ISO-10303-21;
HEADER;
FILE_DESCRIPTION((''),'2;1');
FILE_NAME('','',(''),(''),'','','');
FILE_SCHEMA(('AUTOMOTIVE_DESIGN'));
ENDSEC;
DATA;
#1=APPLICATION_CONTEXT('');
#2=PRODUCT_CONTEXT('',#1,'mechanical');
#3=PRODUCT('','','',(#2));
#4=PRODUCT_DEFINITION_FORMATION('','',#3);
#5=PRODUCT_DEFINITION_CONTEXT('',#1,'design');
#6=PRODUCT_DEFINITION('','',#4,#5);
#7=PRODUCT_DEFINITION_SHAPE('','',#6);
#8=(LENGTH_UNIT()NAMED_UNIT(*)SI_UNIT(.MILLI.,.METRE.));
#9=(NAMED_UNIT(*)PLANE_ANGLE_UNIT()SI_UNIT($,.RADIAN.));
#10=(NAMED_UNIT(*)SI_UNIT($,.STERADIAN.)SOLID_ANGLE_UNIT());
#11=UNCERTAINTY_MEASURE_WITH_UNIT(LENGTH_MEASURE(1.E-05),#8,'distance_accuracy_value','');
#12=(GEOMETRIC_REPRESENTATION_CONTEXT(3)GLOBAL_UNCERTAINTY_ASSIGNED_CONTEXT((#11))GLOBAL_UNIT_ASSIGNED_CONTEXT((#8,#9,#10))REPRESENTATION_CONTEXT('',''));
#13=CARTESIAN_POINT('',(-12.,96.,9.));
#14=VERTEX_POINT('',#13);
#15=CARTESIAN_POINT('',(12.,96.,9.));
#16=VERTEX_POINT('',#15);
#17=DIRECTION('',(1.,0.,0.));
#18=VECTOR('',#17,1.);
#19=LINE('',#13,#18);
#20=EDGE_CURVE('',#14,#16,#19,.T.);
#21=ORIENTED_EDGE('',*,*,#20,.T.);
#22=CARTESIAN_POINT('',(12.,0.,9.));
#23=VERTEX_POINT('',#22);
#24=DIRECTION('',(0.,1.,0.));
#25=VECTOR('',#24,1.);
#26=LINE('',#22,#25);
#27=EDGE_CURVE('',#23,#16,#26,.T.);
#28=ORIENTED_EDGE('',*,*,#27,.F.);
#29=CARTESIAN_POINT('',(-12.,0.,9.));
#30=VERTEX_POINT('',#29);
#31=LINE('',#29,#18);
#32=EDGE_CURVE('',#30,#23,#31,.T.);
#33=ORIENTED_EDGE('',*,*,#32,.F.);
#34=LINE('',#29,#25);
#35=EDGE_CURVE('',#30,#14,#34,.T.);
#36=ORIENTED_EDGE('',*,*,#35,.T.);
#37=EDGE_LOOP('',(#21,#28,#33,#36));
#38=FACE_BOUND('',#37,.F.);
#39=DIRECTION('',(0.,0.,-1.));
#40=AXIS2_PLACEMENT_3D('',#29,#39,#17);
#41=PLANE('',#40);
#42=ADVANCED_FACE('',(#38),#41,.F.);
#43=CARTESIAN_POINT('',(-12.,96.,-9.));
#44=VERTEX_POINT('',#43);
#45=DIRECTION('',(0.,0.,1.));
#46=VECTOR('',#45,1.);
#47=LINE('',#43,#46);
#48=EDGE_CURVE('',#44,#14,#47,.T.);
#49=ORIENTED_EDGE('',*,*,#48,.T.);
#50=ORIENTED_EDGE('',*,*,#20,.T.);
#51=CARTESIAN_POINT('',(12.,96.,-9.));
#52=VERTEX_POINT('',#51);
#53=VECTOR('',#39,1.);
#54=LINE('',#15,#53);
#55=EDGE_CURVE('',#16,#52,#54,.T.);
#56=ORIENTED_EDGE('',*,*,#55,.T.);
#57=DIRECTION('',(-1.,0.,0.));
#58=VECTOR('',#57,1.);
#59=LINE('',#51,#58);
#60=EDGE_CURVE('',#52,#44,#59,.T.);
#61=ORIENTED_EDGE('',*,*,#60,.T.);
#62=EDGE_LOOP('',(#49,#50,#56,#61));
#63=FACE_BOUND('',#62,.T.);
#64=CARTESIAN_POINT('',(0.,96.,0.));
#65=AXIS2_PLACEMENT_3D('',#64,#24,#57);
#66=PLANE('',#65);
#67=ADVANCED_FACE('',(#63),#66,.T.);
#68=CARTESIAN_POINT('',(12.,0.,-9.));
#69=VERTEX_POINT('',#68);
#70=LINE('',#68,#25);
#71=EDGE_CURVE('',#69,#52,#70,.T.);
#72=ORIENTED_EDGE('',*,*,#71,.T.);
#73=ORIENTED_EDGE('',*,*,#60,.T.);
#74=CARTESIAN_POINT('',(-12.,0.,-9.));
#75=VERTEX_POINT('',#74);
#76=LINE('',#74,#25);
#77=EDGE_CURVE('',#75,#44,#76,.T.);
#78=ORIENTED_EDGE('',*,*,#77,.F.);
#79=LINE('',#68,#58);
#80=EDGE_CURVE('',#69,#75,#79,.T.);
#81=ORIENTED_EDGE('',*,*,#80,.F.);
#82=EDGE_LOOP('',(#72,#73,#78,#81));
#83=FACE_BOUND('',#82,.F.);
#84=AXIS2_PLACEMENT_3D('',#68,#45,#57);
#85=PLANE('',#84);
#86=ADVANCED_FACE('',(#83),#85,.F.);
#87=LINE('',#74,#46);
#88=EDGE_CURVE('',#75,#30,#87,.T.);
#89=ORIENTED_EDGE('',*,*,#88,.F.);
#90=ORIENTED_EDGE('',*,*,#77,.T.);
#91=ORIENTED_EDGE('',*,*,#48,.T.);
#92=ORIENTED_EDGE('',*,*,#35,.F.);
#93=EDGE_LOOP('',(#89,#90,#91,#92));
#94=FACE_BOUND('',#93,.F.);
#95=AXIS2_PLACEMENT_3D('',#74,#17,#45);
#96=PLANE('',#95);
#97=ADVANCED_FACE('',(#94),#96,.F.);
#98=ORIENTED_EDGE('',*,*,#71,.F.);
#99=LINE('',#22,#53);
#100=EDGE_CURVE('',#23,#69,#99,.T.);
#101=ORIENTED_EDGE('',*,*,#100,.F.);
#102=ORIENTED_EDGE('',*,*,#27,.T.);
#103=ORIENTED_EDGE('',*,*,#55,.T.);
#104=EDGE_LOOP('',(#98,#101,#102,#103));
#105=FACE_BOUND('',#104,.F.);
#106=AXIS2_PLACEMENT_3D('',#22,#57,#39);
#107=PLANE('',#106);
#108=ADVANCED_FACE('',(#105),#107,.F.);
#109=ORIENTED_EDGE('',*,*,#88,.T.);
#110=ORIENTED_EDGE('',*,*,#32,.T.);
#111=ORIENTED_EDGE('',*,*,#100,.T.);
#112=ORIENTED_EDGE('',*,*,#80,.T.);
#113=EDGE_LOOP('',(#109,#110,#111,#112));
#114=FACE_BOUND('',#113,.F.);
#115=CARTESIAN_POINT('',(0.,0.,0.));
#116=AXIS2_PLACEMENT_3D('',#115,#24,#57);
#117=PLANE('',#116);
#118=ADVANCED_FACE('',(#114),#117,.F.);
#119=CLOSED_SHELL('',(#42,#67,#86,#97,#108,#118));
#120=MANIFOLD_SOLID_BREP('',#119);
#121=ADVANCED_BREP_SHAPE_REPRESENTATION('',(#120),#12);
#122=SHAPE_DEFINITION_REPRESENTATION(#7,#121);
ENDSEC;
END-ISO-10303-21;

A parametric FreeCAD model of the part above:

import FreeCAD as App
import Part
import Sketcher
from FreeCAD import Vector


def add_polygon(sketch, points):
    """Adds a closed chain of lines whose ends are joined by coincident constraints."""
    first, n = sketch.GeometryCount, len(points)
    for a, b in zip(points, points[1:] + points[:1]):
        sketch.addGeometry(Part.LineSegment(App.Vector(*a, 0), App.Vector(*b, 0)), False)
    for i in range(n):
        sketch.addConstraint(Sketcher.Constraint("Coincident", first + i, 2, first + (i + 1) % n, 1))

doc = App.newDocument("Part")
body = doc.addObject("PartDesign::Body", "Body")

sketch1 = body.newObject("Sketcher::SketchObject", "Sketch")
sketch1.AttachmentSupport = (doc.getObject("XZ_Plane"), [""])
sketch1.MapMode = "FlatFace"
add_polygon(sketch1, [(-12, -9), (-12, 9), (12, 9), (12, -9)])
sketch1.addConstraint([
    Sketcher.Constraint("Vertical", 0),
    Sketcher.Constraint("Horizontal", 1),
    Sketcher.Constraint("Vertical", 2),
    Sketcher.Constraint("Horizontal", 3),
    Sketcher.Constraint("Symmetric", 0, 2, 2, 2, -1, 1),
    Sketcher.Constraint("DistanceX", 1, 1, 1, 2, 24.0),
    Sketcher.Constraint("DistanceY", 0, 1, 0, 2, 18.0),
])
pad1 = body.newObject("PartDesign::Pad", "Pad")
pad1.Profile = sketch1
pad1.Length = 96
pad1.Reversed = True

doc.recompute()
